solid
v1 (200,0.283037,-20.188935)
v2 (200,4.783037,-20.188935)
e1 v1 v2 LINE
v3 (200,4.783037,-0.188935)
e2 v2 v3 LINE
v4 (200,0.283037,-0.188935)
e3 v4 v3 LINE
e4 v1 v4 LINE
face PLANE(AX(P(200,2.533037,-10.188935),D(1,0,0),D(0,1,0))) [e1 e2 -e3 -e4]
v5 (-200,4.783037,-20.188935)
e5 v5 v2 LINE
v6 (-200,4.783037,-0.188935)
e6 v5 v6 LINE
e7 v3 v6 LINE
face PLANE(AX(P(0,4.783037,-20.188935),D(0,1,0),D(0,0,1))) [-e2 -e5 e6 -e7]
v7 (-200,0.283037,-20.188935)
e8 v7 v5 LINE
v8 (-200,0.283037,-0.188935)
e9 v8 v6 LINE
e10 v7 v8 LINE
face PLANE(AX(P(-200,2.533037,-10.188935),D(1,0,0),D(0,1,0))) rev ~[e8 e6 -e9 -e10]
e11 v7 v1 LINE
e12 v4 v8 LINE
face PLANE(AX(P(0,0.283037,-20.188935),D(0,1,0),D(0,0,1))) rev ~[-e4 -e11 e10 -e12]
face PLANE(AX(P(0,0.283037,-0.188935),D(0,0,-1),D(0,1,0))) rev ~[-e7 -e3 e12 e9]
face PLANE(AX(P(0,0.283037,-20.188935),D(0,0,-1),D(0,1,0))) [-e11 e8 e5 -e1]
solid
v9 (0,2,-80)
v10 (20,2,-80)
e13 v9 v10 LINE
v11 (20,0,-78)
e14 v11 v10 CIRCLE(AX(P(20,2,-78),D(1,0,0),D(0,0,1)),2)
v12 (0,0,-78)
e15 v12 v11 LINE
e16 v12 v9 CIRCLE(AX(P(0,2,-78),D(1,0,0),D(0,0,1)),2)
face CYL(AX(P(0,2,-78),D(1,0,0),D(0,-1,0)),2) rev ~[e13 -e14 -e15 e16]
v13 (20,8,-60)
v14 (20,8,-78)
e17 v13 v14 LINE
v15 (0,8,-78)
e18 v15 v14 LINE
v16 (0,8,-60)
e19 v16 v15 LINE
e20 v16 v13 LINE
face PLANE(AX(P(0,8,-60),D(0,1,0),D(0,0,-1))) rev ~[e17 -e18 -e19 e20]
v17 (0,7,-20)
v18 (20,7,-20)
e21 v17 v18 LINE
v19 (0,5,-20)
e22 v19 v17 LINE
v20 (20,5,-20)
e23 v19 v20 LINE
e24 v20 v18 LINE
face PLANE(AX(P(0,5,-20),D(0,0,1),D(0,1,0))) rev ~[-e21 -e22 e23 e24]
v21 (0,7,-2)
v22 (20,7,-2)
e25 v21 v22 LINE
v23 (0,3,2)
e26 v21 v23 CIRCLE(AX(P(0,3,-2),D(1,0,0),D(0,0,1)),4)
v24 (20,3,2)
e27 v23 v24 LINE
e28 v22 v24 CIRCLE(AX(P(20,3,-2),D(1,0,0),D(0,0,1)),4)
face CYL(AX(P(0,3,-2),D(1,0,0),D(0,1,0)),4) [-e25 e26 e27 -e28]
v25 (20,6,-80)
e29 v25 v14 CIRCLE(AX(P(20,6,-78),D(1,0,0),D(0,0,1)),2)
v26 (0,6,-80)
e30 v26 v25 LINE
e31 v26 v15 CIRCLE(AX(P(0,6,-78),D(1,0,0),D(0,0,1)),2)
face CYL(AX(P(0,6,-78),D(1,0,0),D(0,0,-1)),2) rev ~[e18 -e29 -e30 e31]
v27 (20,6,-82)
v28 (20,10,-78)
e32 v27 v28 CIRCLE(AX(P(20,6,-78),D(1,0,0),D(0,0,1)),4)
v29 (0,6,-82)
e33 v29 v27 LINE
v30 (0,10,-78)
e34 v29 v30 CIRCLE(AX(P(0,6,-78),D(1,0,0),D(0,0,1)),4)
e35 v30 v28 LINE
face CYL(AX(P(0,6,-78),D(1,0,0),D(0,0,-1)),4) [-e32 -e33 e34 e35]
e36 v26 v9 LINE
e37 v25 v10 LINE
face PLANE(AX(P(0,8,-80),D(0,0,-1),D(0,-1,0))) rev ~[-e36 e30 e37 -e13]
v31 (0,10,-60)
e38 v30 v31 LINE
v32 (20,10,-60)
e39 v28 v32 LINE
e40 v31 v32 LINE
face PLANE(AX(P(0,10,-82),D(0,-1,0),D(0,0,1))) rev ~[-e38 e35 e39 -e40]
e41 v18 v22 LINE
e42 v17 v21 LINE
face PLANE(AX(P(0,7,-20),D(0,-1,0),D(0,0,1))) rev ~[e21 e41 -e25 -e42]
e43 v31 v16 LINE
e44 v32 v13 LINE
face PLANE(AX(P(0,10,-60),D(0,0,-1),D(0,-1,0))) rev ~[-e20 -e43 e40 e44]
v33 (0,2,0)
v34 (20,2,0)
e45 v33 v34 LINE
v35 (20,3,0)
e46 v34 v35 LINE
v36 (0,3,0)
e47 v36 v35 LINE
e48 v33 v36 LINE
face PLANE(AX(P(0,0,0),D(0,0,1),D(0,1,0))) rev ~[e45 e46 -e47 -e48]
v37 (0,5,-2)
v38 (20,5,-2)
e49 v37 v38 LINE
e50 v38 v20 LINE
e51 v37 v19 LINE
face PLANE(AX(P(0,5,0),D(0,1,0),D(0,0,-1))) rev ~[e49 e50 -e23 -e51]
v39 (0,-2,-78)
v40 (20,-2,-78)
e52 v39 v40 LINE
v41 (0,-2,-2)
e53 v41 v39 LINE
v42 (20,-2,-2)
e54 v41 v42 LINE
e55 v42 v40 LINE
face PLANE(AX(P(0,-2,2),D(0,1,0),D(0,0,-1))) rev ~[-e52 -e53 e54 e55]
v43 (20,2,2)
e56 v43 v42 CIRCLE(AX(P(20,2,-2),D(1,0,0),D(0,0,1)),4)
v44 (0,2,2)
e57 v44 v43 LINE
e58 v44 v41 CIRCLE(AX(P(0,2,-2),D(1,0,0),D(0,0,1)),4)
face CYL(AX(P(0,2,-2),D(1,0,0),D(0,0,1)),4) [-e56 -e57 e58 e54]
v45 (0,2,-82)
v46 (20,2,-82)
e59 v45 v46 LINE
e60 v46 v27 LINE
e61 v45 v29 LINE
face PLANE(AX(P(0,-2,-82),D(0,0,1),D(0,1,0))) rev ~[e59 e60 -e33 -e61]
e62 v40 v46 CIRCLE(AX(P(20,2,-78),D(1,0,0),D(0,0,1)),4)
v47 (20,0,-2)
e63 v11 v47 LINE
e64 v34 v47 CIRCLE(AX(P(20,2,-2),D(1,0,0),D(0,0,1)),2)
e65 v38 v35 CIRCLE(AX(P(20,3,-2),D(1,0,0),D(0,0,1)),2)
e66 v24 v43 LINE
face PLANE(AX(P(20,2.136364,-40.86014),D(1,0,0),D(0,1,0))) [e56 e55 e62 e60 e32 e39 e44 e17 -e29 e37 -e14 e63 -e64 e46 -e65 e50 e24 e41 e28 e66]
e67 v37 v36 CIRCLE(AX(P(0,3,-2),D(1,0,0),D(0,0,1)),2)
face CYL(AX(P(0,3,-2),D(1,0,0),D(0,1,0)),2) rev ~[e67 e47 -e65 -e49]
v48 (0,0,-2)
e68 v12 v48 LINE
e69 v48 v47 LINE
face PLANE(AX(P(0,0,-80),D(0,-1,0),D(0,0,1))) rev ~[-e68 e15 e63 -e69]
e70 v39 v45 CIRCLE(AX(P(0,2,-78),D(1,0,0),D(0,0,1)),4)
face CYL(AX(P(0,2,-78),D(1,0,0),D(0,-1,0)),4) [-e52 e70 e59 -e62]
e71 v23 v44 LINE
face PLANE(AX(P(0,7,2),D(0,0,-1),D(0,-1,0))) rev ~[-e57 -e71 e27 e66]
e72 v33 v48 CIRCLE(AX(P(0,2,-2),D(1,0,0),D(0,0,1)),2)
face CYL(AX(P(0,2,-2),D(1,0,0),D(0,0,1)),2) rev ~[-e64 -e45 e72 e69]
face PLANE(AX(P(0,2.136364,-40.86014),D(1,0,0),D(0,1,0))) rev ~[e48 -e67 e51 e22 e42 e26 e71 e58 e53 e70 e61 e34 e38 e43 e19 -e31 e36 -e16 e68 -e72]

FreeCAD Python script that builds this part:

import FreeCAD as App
import Part
import Sketcher

V = App.Vector
Q = App.Units.Quantity


def edges_at(feature, points):
    """Names of the edges that pass closest to the given points."""
    edges = feature.Shape.Edges
    near = lambda p: min(range(len(edges)), key=lambda i: edges[i].distToShape(Part.Vertex(*p))[0])
    return sorted({f"Edge{near(p) + 1}" for p in points})


def add_polygon(sketch, points):
    """Adds a closed chain of lines whose ends are joined by coincident constraints."""
    first, n = sketch.GeometryCount, len(points)
    for a, b in zip(points, points[1:] + points[:1]):
        sketch.addGeometry(Part.LineSegment(App.Vector(*a, 0), App.Vector(*b, 0)), False)
    for i in range(n):
        sketch.addConstraint(Sketcher.Constraint("Coincident", first + i, 2, first + (i + 1) % n, 1))

doc = App.newDocument("Part")
body = doc.addObject("PartDesign::Body", "Body")

# Sketch on YZ plane
sketch1 = doc.addObject("Sketcher::SketchObject", "Sketch")
body.addObject(sketch1)
sketch1.AttachmentSupport = (doc.YZ_Plane, [""])
sketch1.MapMode = "FlatFace"
add_polygon(sketch1, [(0, -80), (0, 0), (5, 0), (5, -20), (7, -20), (7, 2), (-2, 2), (-2, -82), (10, -82), (10, -60), (8, -60), (8, -80)])  # lines 0-11
sketch1.addConstraint([
    Sketcher.Constraint("Vertical", 0),
    Sketcher.Constraint("Horizontal", 1),
    Sketcher.Constraint("Vertical", 2),
    Sketcher.Constraint("Horizontal", 3),
    Sketcher.Constraint("Vertical", 4),
    Sketcher.Constraint("Horizontal", 5),
    Sketcher.Constraint("Vertical", 6),
    Sketcher.Constraint("Horizontal", 7),
    Sketcher.Constraint("Vertical", 8),
    Sketcher.Constraint("Horizontal", 9),
    Sketcher.Constraint("Vertical", 10),
    Sketcher.Constraint("Horizontal", 11),
    Sketcher.Constraint("Coincident", 0, 2, -1, 1),
    Sketcher.Constraint("Equal", 3, 9),
    Sketcher.Constraint("Equal", 4, 8),
    Sketcher.Constraint("Equal", 2, 10),
    Sketcher.Constraint("DistanceX", 1, 1, 1, 2, Q("5 mm")),
    Sketcher.Constraint("DistanceX", 3, 1, 3, 2, Q("2 mm")),
    Sketcher.Constraint("DistanceX", 5, 2, 5, 1, Q("9 mm")),
    Sketcher.Constraint("DistanceX", 7, 1, 7, 2, Q("12 mm")),
    Sketcher.Constraint("DistanceY", 0, 1, 0, 2, Q("80 mm")),
    Sketcher.Constraint("DistanceY", 2, 2, 2, 1, Q("20 mm")),
    Sketcher.Constraint("DistanceY", 4, 1, 4, 2, Q("22 mm")),
])
pad1 = doc.addObject("PartDesign::Pad", "Pad")
body.addObject(pad1)
pad1.Profile = sketch1
pad1.Length = 20
doc.recompute()

fillet = doc.addObject("PartDesign::Fillet", "Fillet")
body.addObject(fillet)
fillet.Base = (pad1, edges_at(pad1, [
    (10, -2, 2),
    (10, 7, 2),
    (10, -2, -82),
    (10, 10, -82),
]))
fillet.Radius = 4
doc.recompute()

fillet2 = doc.addObject("PartDesign::Fillet", "Fillet001")
body.addObject(fillet2)
fillet2.Base = (fillet, edges_at(fillet, [
    (10, 8, -80),
    (10, 5, 0),
    (10, 0, 0),
    (10, 0, -80),
]))
fillet2.Radius = 2
body2 = doc.addObject("PartDesign::Body", "Body001")

# Sketch on YZ plane
sketch2 = doc.addObject("Sketcher::SketchObject", "Sketch001")
body2.addObject(sketch2)
sketch2.AttachmentSupport = (doc.getObject("YZ_Plane001"), [""])
sketch2.MapMode = "FlatFace"
add_polygon(sketch2, [(0.283037, -0.188935), (0.283037, -20.188935), (4.783037, -20.188935), (4.783037, -0.188935)])  # lines 0-3
sketch2.addConstraint([
    Sketcher.Constraint("Vertical", 0),
    Sketcher.Constraint("Horizontal", 1),
    Sketcher.Constraint("Vertical", 2),
    Sketcher.Constraint("Horizontal", 3),
    Sketcher.Constraint("DistanceY", 0, 2, 0, 1, Q("20 mm")),
    Sketcher.Constraint("DistanceX", 1, 1, 1, 2, Q("4.5 mm")),
    Sketcher.Constraint("DistanceX", -1, 1, 0, 2, Q("0.283037 mm")),
    Sketcher.Constraint("DistanceY", 0, 2, -1, 1, Q("20.188935 mm")),
])
pad2 = doc.addObject("PartDesign::Pad", "Pad001")
body2.addObject(pad2)
pad2.Profile = sketch2
pad2.Type = "TwoLengths"
pad2.Length = 200
pad2.Length2 = 200

doc.recompute()
